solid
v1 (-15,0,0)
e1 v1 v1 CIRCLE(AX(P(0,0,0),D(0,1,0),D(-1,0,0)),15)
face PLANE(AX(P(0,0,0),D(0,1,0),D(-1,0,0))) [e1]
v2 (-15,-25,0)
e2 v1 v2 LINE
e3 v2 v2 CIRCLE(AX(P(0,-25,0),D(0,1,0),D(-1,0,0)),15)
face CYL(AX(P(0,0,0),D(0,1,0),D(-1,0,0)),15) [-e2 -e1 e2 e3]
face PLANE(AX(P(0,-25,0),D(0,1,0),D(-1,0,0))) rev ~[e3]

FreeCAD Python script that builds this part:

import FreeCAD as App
import Part
import Sketcher

V = App.Vector
Q = App.Units.Quantity

doc = App.newDocument("Part")
body = doc.addObject("PartDesign::Body", "Body")

# Sketch on XZ plane
sketch1 = body.newObject("Sketcher::SketchObject", "Sketch")
sketch1.AttachmentSupport = (doc.getObject("XZ_Plane"), [""])
sketch1.MapMode = "FlatFace"
sketch1.addGeometry(Part.Circle(V(0, 0, 0), V(0, 0, 1), 15), False)
sketch1.addConstraint(Sketcher.Constraint("Coincident", 0, 3, -1, 1))
sketch1.addConstraint(Sketcher.Constraint("Diameter", 0, Q("30 mm")))
pad1 = body.newObject("PartDesign::Pad", "Pad")
pad1.Profile = sketch1
pad1.Length = 25

doc.recompute()
